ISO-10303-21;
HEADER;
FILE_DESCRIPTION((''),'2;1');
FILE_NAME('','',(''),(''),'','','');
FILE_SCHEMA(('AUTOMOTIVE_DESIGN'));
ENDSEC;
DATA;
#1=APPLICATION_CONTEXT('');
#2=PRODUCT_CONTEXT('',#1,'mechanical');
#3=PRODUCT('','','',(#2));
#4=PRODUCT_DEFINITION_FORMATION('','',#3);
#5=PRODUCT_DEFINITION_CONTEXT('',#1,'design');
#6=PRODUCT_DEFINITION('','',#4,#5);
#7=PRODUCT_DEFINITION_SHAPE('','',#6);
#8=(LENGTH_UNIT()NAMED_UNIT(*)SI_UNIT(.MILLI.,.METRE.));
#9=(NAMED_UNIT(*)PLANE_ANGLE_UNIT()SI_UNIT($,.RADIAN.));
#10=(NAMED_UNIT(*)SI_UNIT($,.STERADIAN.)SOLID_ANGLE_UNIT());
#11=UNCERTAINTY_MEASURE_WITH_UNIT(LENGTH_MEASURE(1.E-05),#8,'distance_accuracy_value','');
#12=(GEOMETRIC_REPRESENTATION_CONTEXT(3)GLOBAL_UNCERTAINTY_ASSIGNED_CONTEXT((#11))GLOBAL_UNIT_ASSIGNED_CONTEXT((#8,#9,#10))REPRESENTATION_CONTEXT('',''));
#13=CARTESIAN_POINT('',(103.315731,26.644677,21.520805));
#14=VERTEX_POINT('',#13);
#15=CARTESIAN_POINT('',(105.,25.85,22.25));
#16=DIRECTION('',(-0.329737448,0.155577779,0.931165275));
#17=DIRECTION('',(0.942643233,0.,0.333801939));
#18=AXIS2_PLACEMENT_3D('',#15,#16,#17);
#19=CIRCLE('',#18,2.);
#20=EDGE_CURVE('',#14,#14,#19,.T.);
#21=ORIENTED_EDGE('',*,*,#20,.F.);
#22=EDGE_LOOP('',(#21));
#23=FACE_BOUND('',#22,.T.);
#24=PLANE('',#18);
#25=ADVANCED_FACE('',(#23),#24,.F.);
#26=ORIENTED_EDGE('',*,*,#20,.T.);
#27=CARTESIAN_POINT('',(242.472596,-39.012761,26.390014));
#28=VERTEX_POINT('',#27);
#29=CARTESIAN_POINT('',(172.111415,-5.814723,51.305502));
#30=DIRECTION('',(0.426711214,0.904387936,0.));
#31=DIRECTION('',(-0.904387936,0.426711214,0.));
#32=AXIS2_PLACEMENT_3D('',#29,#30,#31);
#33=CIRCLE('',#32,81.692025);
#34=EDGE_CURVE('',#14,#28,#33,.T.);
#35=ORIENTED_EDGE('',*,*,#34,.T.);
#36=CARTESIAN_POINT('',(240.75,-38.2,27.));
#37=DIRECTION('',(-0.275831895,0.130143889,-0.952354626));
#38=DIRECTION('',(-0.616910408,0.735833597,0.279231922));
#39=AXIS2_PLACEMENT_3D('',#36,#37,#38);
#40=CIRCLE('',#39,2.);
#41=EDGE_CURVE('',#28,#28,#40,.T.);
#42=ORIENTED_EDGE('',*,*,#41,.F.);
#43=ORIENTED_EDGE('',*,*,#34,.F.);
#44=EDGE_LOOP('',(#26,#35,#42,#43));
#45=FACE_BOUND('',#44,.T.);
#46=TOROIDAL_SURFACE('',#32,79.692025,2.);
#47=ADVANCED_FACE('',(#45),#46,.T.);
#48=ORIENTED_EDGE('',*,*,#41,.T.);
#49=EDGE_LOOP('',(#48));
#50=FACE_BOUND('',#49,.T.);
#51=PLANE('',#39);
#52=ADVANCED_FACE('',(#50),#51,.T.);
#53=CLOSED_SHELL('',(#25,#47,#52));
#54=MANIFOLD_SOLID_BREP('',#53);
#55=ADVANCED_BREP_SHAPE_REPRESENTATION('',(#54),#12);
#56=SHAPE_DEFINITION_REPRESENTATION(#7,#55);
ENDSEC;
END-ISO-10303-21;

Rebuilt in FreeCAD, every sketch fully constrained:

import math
import FreeCAD as App
import Part
import Sketcher

doc = App.newDocument("Part")
body = doc.addObject("PartDesign::Body", "Body")

# Sketch on an angled plane
sketch1 = body.newObject("Sketcher::SketchObject", "Sketch")
sketch1.Placement = App.Placement(App.Vector(105, 25.85, 22.25), App.Rotation(App.Vector(0.942643233, 0, 0.333801939), App.Vector(0.051932164, 0.987823645, -0.146654341), App.Vector(-0.329737448, 0.155577779, 0.931165275), "ZXY"))
sketch1.addGeometry(Part.Circle(App.Vector(0, 0, 0), App.Vector(0, 0, 1), 2), False)
sketch1.addConstraint([
    Sketcher.Constraint("Coincident", 0, 3, -1, 1),
    Sketcher.Constraint("Diameter", 0, 4.0),
])

# Sketch on an angled plane
sketch2 = body.newObject("Sketcher::SketchObject", "Sketch001")
sketch2.Placement = App.Placement(App.Vector(29.094496, 61.663978, 0), App.Rotation(App.Vector(0.904387936, -0.426711214, 0), App.Vector(0, 0, 0.999999999), App.Vector(-0.426711214, -0.904387936, 0), "ZXY"))
sketch2.addGeometry(Part.ArcOfCircle(Part.Circle(App.Vector(158.136695, 51.305501, 0), App.Vector(0, 0, 1), 79.692025), math.radians(-17.757736), math.radians(201.382805)), False)
sketch2.addConstraint([
    Sketcher.Constraint("DistanceY", -1, 1, 0, 1, 27.0),
    Sketcher.Constraint("DistanceY", -1, 1, 0, 2, 22.25),
    Sketcher.Constraint("Radius", 0, 79.692025),
    Sketcher.Constraint("DistanceY", -1, 1, 0, 3, 51.305501),
    Sketcher.Constraint("DistanceX", -1, 1, 0, 2, 83.930248),
])
doc.recompute()

additivepipe = body.newObject("PartDesign::AdditivePipe", "AdditivePipe")
additivepipe.Profile = sketch1
additivepipe.Spine = (sketch2, ["Edge1"])

doc.recompute()
